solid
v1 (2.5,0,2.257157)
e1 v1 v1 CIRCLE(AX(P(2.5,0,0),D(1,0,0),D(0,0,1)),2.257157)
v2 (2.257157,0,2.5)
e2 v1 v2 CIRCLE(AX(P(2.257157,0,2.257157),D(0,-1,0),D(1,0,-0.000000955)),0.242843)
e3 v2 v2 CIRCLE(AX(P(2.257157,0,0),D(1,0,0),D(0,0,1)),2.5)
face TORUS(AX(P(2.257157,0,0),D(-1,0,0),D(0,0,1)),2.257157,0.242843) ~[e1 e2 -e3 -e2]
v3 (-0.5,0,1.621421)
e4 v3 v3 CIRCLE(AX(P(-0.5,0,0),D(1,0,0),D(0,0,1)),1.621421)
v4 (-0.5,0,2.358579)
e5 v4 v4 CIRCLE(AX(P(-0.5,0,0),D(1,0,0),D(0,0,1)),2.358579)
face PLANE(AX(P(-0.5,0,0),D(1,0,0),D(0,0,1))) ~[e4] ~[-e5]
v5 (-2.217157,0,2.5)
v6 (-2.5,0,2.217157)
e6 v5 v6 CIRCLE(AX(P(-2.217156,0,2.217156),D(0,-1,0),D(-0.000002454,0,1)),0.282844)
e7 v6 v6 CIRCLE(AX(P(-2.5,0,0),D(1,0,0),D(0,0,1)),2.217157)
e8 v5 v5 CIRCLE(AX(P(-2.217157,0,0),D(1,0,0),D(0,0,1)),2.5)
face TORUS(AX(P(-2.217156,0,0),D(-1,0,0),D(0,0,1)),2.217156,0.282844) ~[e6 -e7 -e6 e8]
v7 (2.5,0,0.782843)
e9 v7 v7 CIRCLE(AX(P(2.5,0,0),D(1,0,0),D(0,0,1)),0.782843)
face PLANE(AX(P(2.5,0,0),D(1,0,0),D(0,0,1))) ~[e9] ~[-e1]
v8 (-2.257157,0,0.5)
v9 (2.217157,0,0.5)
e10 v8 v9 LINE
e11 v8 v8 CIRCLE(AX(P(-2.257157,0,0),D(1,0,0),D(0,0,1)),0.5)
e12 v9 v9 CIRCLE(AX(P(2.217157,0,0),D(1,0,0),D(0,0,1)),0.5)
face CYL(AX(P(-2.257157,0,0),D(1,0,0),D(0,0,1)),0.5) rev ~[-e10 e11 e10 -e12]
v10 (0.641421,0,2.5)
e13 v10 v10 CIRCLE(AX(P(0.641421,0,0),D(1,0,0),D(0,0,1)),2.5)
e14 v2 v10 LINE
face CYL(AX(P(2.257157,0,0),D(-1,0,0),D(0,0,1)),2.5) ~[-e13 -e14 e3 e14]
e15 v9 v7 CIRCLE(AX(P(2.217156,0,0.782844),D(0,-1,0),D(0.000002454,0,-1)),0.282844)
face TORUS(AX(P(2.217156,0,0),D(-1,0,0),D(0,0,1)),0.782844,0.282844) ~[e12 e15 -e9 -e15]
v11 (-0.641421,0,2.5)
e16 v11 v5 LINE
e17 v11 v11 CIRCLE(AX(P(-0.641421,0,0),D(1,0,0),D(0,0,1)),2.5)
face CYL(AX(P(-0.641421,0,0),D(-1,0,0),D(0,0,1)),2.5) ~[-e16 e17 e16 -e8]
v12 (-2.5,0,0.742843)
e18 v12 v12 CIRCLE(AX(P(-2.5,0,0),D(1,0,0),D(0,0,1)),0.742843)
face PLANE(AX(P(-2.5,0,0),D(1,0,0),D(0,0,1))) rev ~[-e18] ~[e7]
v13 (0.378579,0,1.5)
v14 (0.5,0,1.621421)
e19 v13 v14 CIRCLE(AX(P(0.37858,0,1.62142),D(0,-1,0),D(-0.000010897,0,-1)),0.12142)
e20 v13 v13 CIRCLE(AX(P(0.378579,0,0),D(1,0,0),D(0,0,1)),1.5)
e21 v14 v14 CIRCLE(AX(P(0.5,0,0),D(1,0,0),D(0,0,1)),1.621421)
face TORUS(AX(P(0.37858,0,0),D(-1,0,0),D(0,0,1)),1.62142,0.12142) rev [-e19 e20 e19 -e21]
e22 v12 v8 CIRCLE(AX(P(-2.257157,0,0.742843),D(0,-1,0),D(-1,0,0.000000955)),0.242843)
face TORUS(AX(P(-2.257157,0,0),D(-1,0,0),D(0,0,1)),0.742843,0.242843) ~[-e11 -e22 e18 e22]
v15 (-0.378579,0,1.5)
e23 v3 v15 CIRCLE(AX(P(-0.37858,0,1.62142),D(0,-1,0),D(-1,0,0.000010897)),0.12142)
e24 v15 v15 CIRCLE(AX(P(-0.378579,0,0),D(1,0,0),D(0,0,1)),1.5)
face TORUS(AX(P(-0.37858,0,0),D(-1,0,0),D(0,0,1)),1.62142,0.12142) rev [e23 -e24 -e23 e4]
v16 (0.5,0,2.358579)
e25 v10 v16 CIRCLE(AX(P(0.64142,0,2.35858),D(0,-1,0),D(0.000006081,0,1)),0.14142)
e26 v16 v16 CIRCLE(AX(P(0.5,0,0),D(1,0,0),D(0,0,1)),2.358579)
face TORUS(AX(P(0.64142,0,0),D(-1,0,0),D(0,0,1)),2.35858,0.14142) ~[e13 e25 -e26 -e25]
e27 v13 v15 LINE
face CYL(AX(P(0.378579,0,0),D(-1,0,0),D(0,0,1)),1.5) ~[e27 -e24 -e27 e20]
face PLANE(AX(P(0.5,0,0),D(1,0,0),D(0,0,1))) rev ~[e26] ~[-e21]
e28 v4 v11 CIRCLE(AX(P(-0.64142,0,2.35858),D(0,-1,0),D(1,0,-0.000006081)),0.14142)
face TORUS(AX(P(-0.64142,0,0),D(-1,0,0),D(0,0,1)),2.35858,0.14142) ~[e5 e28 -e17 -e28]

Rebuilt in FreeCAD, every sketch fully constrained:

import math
import FreeCAD as App
import Part
import Sketcher

V = App.Vector

doc = App.newDocument("Part")
body = doc.addObject("PartDesign::Body", "Body")

# Sketch on XZ plane
sketch1 = doc.addObject("Sketcher::SketchObject", "Sketch")
body.addObject(sketch1)
sketch1.AttachmentSupport = (doc.XZ_Plane, [""])
sketch1.MapMode = "FlatFace"
sketch1.addGeometry(Part.LineSegment(V(2.5, 0.782843, 0), V(2.5, 2.257157, 0)), False)
sketch1.addGeometry(Part.ArcOfCircle(Part.Circle(V(2.257157, 2.257157, 0), V(0, 0, 1), 0.242843), math.radians(-0.000055), math.radians(90.000055)), False)
sketch1.addGeometry(Part.LineSegment(V(2.257157, 2.5, 0), V(0.641421, 2.5, 0)), False)
sketch1.addGeometry(Part.ArcOfCircle(Part.Circle(V(0.64142, 2.35858, 0), V(0, 0, 1), 0.14142), math.radians(89.999652), math.radians(180.000348)), False)
sketch1.addGeometry(Part.LineSegment(V(0.5, 2.358579, 0), V(0.5, 1.621421, 0)), False)
sketch1.addGeometry(Part.ArcOfCircle(Part.Circle(V(0.37858, 1.62142, 0), V(0, 0, 1), 0.12142), math.radians(-90.000624), math.radians(0.000624)), False)
sketch1.addGeometry(Part.LineSegment(V(0.378579, 1.5, 0), V(-0.378579, 1.5, 0)), False)
sketch1.addGeometry(Part.ArcOfCircle(Part.Circle(V(-0.37858, 1.62142, 0), V(0, 0, 1), 0.12142), math.radians(179.999376), math.radians(270.000624)), False)
sketch1.addGeometry(Part.LineSegment(V(-0.5, 1.621421, 0), V(-0.5, 2.358579, 0)), False)
sketch1.addGeometry(Part.ArcOfCircle(Part.Circle(V(-0.64142, 2.35858, 0), V(0, 0, 1), 0.14142), math.radians(-0.000348), math.radians(90.000348)), False)
sketch1.addGeometry(Part.LineSegment(V(-0.641421, 2.5, 0), V(-2.217157, 2.5, 0)), False)
sketch1.addGeometry(Part.ArcOfCircle(Part.Circle(V(-2.217156, 2.217156, 0), V(0, 0, 1), 0.282844), math.radians(90.000141), math.radians(179.999859)), False)
sketch1.addGeometry(Part.LineSegment(V(-2.5, 2.217157, 0), V(-2.5, 0.742843, 0)), False)
sketch1.addGeometry(Part.ArcOfCircle(Part.Circle(V(-2.257157, 0.742843, 0), V(0, 0, 1), 0.242843), math.radians(179.999945), math.radians(270.000055)), False)
sketch1.addGeometry(Part.LineSegment(V(-2.257157, 0.5, 0), V(2.217157, 0.5, 0)), False)
sketch1.addGeometry(Part.ArcOfCircle(Part.Circle(V(2.217156, 0.782844, 0), V(0, 0, 1), 0.282844), math.radians(-89.999859), math.radians(-0.000141)), False)
sketch1.addConstraint(Sketcher.Constraint("Tangent", 0, 2, 1, 1))
sketch1.addConstraint(Sketcher.Constraint("Tangent", 1, 2, 2, 1))
sketch1.addConstraint(Sketcher.Constraint("Coincident", 2, 2, 3, 1))
sketch1.addConstraint(Sketcher.Constraint("Coincident", 3, 2, 4, 1))
sketch1.addConstraint(Sketcher.Constraint("Coincident", 4, 2, 5, 2))
sketch1.addConstraint(Sketcher.Constraint("Coincident", 5, 1, 6, 1))
sketch1.addConstraint(Sketcher.Constraint("Coincident", 6, 2, 7, 2))
sketch1.addConstraint(Sketcher.Constraint("Coincident", 7, 1, 8, 1))
sketch1.addConstraint(Sketcher.Constraint("Coincident", 8, 2, 9, 1))
sketch1.addConstraint(Sketcher.Constraint("Coincident", 9, 2, 10, 1))
sketch1.addConstraint(Sketcher.Constraint("Coincident", 10, 2, 11, 1))
sketch1.addConstraint(Sketcher.Constraint("Coincident", 11, 2, 12, 1))
sketch1.addConstraint(Sketcher.Constraint("Tangent", 12, 2, 13, 1))
sketch1.addConstraint(Sketcher.Constraint("Tangent", 13, 2, 14, 1))
sketch1.addConstraint(Sketcher.Constraint("Coincident", 14, 2, 15, 1))
sketch1.addConstraint(Sketcher.Constraint("Coincident", 15, 2, 0, 1))
sketch1.addConstraint(Sketcher.Constraint("Vertical", 0))
sketch1.addConstraint(Sketcher.Constraint("Horizontal", 2))
sketch1.addConstraint(Sketcher.Constraint("Vertical", 4))
sketch1.addConstraint(Sketcher.Constraint("Horizontal", 6))
sketch1.addConstraint(Sketcher.Constraint("Vertical", 8))
sketch1.addConstraint(Sketcher.Constraint("Horizontal", 10))
sketch1.addConstraint(Sketcher.Constraint("Vertical", 12))
sketch1.addConstraint(Sketcher.Constraint("Horizontal", 14))
sketch1.addConstraint(Sketcher.Constraint("Equal", 5, 7))
sketch1.addConstraint(Sketcher.Constraint("Equal", 3, 9))
sketch1.addConstraint(Sketcher.Constraint("Equal", 1, 13))
sketch1.addConstraint(Sketcher.Constraint("Equal", 11, 15))
sketch1.addConstraint(Sketcher.Constraint("Symmetric", 3, 3, 9, 3, -2))
sketch1.addConstraint(Sketcher.Constraint("Horizontal", 9, 3, 3, 2))
sketch1.addConstraint(Sketcher.Constraint("Horizontal", 7, 3, 4, 2))
sketch1.addConstraint(Sketcher.Constraint("Horizontal", 4, 2, 7, 1))
sketch1.addConstraint(Sketcher.Constraint("Horizontal", 3, 2, 8, 2))
sketch1.addConstraint(Sketcher.Constraint("Vertical", 3, 3, 2, 2))
sketch1.addConstraint(Sketcher.Constraint("Vertical", 7, 3, 6, 2))
sketch1.addConstraint(Sketcher.Constraint("Vertical", 11, 3, 10, 2))
sketch1.addConstraint(Sketcher.Constraint("Vertical", 15, 3, 14, 2))
sketch1.addConstraint(Sketcher.Constraint("Equal", 0, 12))
sketch1.addConstraint(Sketcher.Constraint("DistanceX", 8, 2, 3, 2, 1.0))
sketch1.addConstraint(Sketcher.Constraint("DistanceY", 6, 2, 9, 2, 1.0))
sketch1.addConstraint(Sketcher.Constraint("DistanceX", 12, 2, 7, 1, 2.0))
sketch1.addConstraint(Sketcher.Constraint("DistanceY", 13, 2, 10, 2, 2.0))
sketch1.addConstraint(Sketcher.Constraint("DistanceX", -1, 1, 0, 2, 2.5))
sketch1.addConstraint(Sketcher.Constraint("DistanceY", -1, 1, 1, 2, 2.5))
sketch1.addConstraint(Sketcher.Constraint("Radius", 3, 0.14142))
sketch1.addConstraint(Sketcher.Constraint("Radius", 5, 0.12142))
sketch1.addConstraint(Sketcher.Constraint("DistanceY", 11, 3, 1, 3, 0.040001))
sketch1.addConstraint(Sketcher.Constraint("Radius", 1, 0.242843))
sketch1.addConstraint(Sketcher.Constraint("DistanceX", 6, 2, 6, 1, 0.757158))
sketch1.addConstraint(Sketcher.Constraint("DistanceX", 10, 2, 10, 1, 1.575736))
sketch1.addConstraint(Sketcher.Constraint("DistanceY", 0, 1, 0, 2, 1.474314))
revolution = doc.addObject("PartDesign::Revolution", "Revolution")
body.addObject(revolution)
revolution.Profile = sketch1
revolution.ReferenceAxis = (sketch1, ["H_Axis"])
revolution.Angle = 360

doc.recompute()
